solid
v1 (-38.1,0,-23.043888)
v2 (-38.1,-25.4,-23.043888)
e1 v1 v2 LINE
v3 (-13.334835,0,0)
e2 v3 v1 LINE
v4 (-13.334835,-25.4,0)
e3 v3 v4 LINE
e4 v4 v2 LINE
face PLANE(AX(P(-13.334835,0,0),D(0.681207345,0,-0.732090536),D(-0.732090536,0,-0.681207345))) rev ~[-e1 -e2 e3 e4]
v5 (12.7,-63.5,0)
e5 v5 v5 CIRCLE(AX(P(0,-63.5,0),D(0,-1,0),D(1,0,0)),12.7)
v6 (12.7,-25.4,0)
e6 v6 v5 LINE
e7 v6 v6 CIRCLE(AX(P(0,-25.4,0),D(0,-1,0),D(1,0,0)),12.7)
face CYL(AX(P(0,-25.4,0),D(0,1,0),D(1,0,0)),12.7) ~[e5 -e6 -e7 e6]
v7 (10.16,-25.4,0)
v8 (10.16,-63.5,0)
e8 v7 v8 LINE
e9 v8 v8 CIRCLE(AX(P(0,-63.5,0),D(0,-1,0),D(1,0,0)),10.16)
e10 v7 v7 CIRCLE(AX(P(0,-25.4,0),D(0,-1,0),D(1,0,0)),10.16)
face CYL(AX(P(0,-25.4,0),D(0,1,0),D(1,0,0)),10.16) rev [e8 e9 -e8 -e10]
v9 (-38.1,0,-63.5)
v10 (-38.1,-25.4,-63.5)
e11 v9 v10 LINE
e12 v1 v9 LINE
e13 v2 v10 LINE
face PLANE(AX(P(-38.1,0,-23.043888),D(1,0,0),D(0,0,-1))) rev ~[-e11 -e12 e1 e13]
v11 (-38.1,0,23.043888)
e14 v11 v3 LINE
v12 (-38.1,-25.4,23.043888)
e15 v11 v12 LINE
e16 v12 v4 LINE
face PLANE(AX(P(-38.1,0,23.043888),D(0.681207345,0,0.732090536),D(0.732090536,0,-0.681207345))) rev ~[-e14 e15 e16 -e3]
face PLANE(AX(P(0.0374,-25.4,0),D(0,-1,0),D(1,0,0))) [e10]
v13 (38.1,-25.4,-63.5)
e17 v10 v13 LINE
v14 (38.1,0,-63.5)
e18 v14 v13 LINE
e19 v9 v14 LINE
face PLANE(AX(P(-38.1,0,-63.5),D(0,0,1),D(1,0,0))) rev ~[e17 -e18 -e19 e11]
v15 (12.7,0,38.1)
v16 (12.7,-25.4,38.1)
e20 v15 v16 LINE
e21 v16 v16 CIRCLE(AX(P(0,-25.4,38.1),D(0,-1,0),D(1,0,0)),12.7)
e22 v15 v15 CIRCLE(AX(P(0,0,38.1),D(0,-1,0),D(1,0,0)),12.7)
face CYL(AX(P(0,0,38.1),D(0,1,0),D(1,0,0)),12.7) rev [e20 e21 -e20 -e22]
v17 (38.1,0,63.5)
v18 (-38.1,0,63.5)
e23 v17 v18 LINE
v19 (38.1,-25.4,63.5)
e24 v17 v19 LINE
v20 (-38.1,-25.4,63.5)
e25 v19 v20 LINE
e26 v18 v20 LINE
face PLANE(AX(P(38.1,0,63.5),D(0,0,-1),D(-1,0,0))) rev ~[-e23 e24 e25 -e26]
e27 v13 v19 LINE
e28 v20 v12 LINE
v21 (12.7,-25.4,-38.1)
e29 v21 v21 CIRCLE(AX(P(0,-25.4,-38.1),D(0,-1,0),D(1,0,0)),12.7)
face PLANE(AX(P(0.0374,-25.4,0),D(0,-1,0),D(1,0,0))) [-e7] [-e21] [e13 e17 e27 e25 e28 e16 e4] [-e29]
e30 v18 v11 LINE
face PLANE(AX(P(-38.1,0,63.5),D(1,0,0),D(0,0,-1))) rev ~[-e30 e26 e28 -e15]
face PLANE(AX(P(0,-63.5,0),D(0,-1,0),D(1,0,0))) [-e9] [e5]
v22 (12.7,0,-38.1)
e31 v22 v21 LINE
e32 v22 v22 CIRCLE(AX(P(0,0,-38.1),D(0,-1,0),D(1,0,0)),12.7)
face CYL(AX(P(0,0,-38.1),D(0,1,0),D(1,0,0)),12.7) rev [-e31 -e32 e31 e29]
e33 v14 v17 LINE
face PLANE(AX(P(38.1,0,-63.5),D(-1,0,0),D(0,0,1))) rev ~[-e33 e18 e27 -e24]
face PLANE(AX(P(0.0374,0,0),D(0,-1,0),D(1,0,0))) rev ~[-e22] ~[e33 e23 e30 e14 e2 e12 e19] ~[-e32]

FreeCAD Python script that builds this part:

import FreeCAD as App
import Part
import Sketcher

V = App.Vector
Q = App.Units.Quantity

doc = App.newDocument("Part")
body = doc.addObject("PartDesign::Body", "Body")

# Sketch on XZ plane
sketch1 = body.newObject("Sketcher::SketchObject", "Sketch")
sketch1.AttachmentSupport = (doc.getObject("XZ_Plane"), [""])
sketch1.MapMode = "FlatFace"
sketch1.addGeometry([
    Part.LineSegment(V(38, 64, 0), V(-38, 64, 0)),  # 0
    Part.LineSegment(V(-38, 64, 0), V(-38, 23, 0)),  # 1
    Part.LineSegment(V(-38, 23, 0), V(-13, 0, 0)),  # 2
    Part.LineSegment(V(-13, 0, 0), V(-38, -23, 0)),  # 3
    Part.LineSegment(V(-38, -23, 0), V(-38, -64, 0)),  # 4
    Part.LineSegment(V(-38, -64, 0), V(38, -64, 0)),  # 5
    Part.LineSegment(V(38, -64, 0), V(38, 64, 0)),  # 6
    Part.Circle(V(0, -38, 0), V(0, 0, 1), 13),  # 7
    Part.Circle(V(0, 38, 0), V(0, 0, 1), 13),  # 8
], False)
sketch1.addConstraint([
    Sketcher.Constraint("Coincident", 0, 2, 1, 1),
    Sketcher.Constraint("Coincident", 1, 2, 2, 1),
    Sketcher.Constraint("Coincident", 2, 2, 3, 1),
    Sketcher.Constraint("Coincident", 3, 2, 4, 1),
    Sketcher.Constraint("Coincident", 4, 2, 5, 1),
    Sketcher.Constraint("Coincident", 5, 2, 6, 1),
    Sketcher.Constraint("Coincident", 6, 2, 0, 1),
    Sketcher.Constraint("Horizontal", 0),
    Sketcher.Constraint("Vertical", 1),
    Sketcher.Constraint("Vertical", 4),
    Sketcher.Constraint("Horizontal", 5),
    Sketcher.Constraint("Vertical", 6),
    Sketcher.Constraint("Equal", 7, 8),
    Sketcher.Constraint("Symmetric", 7, 3, 8, 3, -1, 1),
    Sketcher.Constraint("Symmetric", 0, 2, 5, 2, -1, 1),
    Sketcher.Constraint("Symmetric", 1, 2, 3, 2, -1),
    Sketcher.Constraint("PointOnObject", 7, 3, -2),
    Sketcher.Constraint("PointOnObject", 2, 2, -1),
    Sketcher.Constraint("Diameter", 7, Q("1 in")),
    Sketcher.Constraint("DistanceX", 0, 2, 0, 1, Q("3 in")),
    Sketcher.Constraint("DistanceY", 6, 1, 6, 2, Q("5 in")),
    Sketcher.Constraint("DistanceY", 7, 3, 8, 3, Q("3 in")),
    Sketcher.Constraint("Distance", 2, 33.828009),
    Sketcher.Constraint("DistanceY", 1, 2, 1, 1, 40.456112),
])
pad1 = body.newObject("PartDesign::Pad", "Pad")
pad1.Profile = sketch1
pad1.Length = Q("1 in")

# Sketch on XZ plane
sketch2 = body.newObject("Sketcher::SketchObject", "Sketch001")
sketch2.AttachmentSupport = (doc.getObject("XZ_Plane"), [""])
sketch2.MapMode = "FlatFace"
sketch2.AttachmentOffset = App.Placement(V(0, 0, 1 * 25.4), App.Rotation())
sketch2.addGeometry([
    Part.Circle(V(0, 0, 0), V(0, 0, 1), 13),
    Part.Circle(V(0, 0, 0), V(0, 0, 1), 10),
], False)
sketch2.addConstraint([
    Sketcher.Constraint("Coincident", 0, 3, -1, 1),
    Sketcher.Constraint("Coincident", 1, 3, -1, 1),
    Sketcher.Constraint("Diameter", 0, Q("1 in")),
    Sketcher.Constraint("Diameter", 1, Q("0.8 in")),
])
pad2 = body.newObject("PartDesign::Pad", "Pad001")
pad2.Profile = sketch2
pad2.Length = Q("1.5 in")

doc.recompute()
